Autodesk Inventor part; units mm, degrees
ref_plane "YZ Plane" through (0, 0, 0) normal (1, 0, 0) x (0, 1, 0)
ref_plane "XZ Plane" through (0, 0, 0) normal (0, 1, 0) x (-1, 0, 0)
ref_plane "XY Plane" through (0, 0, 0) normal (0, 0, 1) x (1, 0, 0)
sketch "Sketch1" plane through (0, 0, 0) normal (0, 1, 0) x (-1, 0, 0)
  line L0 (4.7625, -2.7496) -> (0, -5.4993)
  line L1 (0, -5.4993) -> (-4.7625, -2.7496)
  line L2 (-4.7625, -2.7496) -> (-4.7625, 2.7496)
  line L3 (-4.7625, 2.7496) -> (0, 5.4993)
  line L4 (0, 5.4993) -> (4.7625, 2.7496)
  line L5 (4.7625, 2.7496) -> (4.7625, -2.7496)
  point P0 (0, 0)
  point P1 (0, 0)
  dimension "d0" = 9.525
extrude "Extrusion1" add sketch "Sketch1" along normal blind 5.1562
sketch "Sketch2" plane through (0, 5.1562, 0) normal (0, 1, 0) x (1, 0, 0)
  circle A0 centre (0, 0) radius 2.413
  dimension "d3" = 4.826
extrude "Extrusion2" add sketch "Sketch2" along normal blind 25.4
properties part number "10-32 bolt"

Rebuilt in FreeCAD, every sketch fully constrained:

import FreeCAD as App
import Part
import Sketcher
Q = App.Units.Quantity


def add_polygon(sketch, points):
    """Adds a closed chain of lines whose ends are joined by coincident constraints."""
    first, n = sketch.GeometryCount, len(points)
    for a, b in zip(points, points[1:] + points[:1]):
        sketch.addGeometry(Part.LineSegment(App.Vector(*a, 0), App.Vector(*b, 0)), False)
    for i in range(n):
        sketch.addConstraint(Sketcher.Constraint("Coincident", first + i, 2, first + (i + 1) % n, 1))

doc = App.newDocument("Part")
params = doc.addObject("Spreadsheet::Sheet", "Params")
for row, (alias, value) in enumerate([
    ("pad1_length", "0.203 in"),
    ("sketch2_diameter", "0.19 in"),
    ("pad2_length", "1 in"),
], start=1):
    params.set(f"A{row}", alias)
    params.set(f"B{row}", "=" + value)
    params.setAlias(f"B{row}", alias)

body = doc.addObject("PartDesign::Body", "Body")

sketch1 = body.newObject("Sketcher::SketchObject", "Sketch")
sketch1.AttachmentSupport = (doc.getObject("XZ_Plane"), [""])
sketch1.MapMode = "FlatFace"
add_polygon(sketch1, [(0, -5), (-5, -3), (-5, 3), (0, 5), (5, 3), (5, -3)])
sketch1.addConstraint(Sketcher.Constraint("Vertical", 1))
sketch1.addConstraint(Sketcher.Constraint("Vertical", 4))
sketch1.addConstraint(Sketcher.Constraint("Symmetric", 0, 2, 3, 2, -1, 1))
sketch1.addConstraint(Sketcher.Constraint("Symmetric", 2, 2, 5, 2, -1, 1))
sketch1.addConstraint(Sketcher.Constraint("PointOnObject", 2, 2, -2))
sketch1.addConstraint(Sketcher.Constraint("Parallel", 2, 5))
sketch1.addConstraint(Sketcher.Constraint("Horizontal", 1, 2, 3, 2))
sketch1.addConstraint(Sketcher.Constraint("Angle", 0, Q("149.9994 deg")))
sketch1.addConstraint(Sketcher.Constraint("DistanceX", 1, 2, 3, 2, Q("0.375 in")))
sketch1.addConstraint(Sketcher.Constraint("DistanceY", 1, 1, 1, 2, Q("0.2165 in")))
pad1 = body.newObject("PartDesign::Pad", "Pad")
pad1.Profile = sketch1
pad1.setExpression("Length", "Params.pad1_length")
pad1.Reversed = True

sketch2 = body.newObject("Sketcher::SketchObject", "Sketch001")
sketch2.AttachmentSupport = (doc.getObject("XZ_Plane"), [""])
sketch2.MapMode = "FlatFace"
sketch2.AttachmentOffset = App.Placement(App.Vector(0, 0, -0.203 * 25.4), App.Rotation())
sketch2.addGeometry(Part.Circle(App.Vector(0, 0, 0), App.Vector(0, 0, 1), 2.4), False)
sketch2.addConstraint(Sketcher.Constraint("Coincident", 0, 3, -1, 1))
sketch2.addConstraint(Sketcher.Constraint("Diameter", 0, Q("0.19 in")))
sketch2.setExpression("Constraints[1]", "Params.sketch2_diameter")
pad2 = body.newObject("PartDesign::Pad", "Pad001")
pad2.Profile = sketch2
pad2.setExpression("Length", "Params.pad2_length")
pad2.Reversed = True

doc.recompute()
